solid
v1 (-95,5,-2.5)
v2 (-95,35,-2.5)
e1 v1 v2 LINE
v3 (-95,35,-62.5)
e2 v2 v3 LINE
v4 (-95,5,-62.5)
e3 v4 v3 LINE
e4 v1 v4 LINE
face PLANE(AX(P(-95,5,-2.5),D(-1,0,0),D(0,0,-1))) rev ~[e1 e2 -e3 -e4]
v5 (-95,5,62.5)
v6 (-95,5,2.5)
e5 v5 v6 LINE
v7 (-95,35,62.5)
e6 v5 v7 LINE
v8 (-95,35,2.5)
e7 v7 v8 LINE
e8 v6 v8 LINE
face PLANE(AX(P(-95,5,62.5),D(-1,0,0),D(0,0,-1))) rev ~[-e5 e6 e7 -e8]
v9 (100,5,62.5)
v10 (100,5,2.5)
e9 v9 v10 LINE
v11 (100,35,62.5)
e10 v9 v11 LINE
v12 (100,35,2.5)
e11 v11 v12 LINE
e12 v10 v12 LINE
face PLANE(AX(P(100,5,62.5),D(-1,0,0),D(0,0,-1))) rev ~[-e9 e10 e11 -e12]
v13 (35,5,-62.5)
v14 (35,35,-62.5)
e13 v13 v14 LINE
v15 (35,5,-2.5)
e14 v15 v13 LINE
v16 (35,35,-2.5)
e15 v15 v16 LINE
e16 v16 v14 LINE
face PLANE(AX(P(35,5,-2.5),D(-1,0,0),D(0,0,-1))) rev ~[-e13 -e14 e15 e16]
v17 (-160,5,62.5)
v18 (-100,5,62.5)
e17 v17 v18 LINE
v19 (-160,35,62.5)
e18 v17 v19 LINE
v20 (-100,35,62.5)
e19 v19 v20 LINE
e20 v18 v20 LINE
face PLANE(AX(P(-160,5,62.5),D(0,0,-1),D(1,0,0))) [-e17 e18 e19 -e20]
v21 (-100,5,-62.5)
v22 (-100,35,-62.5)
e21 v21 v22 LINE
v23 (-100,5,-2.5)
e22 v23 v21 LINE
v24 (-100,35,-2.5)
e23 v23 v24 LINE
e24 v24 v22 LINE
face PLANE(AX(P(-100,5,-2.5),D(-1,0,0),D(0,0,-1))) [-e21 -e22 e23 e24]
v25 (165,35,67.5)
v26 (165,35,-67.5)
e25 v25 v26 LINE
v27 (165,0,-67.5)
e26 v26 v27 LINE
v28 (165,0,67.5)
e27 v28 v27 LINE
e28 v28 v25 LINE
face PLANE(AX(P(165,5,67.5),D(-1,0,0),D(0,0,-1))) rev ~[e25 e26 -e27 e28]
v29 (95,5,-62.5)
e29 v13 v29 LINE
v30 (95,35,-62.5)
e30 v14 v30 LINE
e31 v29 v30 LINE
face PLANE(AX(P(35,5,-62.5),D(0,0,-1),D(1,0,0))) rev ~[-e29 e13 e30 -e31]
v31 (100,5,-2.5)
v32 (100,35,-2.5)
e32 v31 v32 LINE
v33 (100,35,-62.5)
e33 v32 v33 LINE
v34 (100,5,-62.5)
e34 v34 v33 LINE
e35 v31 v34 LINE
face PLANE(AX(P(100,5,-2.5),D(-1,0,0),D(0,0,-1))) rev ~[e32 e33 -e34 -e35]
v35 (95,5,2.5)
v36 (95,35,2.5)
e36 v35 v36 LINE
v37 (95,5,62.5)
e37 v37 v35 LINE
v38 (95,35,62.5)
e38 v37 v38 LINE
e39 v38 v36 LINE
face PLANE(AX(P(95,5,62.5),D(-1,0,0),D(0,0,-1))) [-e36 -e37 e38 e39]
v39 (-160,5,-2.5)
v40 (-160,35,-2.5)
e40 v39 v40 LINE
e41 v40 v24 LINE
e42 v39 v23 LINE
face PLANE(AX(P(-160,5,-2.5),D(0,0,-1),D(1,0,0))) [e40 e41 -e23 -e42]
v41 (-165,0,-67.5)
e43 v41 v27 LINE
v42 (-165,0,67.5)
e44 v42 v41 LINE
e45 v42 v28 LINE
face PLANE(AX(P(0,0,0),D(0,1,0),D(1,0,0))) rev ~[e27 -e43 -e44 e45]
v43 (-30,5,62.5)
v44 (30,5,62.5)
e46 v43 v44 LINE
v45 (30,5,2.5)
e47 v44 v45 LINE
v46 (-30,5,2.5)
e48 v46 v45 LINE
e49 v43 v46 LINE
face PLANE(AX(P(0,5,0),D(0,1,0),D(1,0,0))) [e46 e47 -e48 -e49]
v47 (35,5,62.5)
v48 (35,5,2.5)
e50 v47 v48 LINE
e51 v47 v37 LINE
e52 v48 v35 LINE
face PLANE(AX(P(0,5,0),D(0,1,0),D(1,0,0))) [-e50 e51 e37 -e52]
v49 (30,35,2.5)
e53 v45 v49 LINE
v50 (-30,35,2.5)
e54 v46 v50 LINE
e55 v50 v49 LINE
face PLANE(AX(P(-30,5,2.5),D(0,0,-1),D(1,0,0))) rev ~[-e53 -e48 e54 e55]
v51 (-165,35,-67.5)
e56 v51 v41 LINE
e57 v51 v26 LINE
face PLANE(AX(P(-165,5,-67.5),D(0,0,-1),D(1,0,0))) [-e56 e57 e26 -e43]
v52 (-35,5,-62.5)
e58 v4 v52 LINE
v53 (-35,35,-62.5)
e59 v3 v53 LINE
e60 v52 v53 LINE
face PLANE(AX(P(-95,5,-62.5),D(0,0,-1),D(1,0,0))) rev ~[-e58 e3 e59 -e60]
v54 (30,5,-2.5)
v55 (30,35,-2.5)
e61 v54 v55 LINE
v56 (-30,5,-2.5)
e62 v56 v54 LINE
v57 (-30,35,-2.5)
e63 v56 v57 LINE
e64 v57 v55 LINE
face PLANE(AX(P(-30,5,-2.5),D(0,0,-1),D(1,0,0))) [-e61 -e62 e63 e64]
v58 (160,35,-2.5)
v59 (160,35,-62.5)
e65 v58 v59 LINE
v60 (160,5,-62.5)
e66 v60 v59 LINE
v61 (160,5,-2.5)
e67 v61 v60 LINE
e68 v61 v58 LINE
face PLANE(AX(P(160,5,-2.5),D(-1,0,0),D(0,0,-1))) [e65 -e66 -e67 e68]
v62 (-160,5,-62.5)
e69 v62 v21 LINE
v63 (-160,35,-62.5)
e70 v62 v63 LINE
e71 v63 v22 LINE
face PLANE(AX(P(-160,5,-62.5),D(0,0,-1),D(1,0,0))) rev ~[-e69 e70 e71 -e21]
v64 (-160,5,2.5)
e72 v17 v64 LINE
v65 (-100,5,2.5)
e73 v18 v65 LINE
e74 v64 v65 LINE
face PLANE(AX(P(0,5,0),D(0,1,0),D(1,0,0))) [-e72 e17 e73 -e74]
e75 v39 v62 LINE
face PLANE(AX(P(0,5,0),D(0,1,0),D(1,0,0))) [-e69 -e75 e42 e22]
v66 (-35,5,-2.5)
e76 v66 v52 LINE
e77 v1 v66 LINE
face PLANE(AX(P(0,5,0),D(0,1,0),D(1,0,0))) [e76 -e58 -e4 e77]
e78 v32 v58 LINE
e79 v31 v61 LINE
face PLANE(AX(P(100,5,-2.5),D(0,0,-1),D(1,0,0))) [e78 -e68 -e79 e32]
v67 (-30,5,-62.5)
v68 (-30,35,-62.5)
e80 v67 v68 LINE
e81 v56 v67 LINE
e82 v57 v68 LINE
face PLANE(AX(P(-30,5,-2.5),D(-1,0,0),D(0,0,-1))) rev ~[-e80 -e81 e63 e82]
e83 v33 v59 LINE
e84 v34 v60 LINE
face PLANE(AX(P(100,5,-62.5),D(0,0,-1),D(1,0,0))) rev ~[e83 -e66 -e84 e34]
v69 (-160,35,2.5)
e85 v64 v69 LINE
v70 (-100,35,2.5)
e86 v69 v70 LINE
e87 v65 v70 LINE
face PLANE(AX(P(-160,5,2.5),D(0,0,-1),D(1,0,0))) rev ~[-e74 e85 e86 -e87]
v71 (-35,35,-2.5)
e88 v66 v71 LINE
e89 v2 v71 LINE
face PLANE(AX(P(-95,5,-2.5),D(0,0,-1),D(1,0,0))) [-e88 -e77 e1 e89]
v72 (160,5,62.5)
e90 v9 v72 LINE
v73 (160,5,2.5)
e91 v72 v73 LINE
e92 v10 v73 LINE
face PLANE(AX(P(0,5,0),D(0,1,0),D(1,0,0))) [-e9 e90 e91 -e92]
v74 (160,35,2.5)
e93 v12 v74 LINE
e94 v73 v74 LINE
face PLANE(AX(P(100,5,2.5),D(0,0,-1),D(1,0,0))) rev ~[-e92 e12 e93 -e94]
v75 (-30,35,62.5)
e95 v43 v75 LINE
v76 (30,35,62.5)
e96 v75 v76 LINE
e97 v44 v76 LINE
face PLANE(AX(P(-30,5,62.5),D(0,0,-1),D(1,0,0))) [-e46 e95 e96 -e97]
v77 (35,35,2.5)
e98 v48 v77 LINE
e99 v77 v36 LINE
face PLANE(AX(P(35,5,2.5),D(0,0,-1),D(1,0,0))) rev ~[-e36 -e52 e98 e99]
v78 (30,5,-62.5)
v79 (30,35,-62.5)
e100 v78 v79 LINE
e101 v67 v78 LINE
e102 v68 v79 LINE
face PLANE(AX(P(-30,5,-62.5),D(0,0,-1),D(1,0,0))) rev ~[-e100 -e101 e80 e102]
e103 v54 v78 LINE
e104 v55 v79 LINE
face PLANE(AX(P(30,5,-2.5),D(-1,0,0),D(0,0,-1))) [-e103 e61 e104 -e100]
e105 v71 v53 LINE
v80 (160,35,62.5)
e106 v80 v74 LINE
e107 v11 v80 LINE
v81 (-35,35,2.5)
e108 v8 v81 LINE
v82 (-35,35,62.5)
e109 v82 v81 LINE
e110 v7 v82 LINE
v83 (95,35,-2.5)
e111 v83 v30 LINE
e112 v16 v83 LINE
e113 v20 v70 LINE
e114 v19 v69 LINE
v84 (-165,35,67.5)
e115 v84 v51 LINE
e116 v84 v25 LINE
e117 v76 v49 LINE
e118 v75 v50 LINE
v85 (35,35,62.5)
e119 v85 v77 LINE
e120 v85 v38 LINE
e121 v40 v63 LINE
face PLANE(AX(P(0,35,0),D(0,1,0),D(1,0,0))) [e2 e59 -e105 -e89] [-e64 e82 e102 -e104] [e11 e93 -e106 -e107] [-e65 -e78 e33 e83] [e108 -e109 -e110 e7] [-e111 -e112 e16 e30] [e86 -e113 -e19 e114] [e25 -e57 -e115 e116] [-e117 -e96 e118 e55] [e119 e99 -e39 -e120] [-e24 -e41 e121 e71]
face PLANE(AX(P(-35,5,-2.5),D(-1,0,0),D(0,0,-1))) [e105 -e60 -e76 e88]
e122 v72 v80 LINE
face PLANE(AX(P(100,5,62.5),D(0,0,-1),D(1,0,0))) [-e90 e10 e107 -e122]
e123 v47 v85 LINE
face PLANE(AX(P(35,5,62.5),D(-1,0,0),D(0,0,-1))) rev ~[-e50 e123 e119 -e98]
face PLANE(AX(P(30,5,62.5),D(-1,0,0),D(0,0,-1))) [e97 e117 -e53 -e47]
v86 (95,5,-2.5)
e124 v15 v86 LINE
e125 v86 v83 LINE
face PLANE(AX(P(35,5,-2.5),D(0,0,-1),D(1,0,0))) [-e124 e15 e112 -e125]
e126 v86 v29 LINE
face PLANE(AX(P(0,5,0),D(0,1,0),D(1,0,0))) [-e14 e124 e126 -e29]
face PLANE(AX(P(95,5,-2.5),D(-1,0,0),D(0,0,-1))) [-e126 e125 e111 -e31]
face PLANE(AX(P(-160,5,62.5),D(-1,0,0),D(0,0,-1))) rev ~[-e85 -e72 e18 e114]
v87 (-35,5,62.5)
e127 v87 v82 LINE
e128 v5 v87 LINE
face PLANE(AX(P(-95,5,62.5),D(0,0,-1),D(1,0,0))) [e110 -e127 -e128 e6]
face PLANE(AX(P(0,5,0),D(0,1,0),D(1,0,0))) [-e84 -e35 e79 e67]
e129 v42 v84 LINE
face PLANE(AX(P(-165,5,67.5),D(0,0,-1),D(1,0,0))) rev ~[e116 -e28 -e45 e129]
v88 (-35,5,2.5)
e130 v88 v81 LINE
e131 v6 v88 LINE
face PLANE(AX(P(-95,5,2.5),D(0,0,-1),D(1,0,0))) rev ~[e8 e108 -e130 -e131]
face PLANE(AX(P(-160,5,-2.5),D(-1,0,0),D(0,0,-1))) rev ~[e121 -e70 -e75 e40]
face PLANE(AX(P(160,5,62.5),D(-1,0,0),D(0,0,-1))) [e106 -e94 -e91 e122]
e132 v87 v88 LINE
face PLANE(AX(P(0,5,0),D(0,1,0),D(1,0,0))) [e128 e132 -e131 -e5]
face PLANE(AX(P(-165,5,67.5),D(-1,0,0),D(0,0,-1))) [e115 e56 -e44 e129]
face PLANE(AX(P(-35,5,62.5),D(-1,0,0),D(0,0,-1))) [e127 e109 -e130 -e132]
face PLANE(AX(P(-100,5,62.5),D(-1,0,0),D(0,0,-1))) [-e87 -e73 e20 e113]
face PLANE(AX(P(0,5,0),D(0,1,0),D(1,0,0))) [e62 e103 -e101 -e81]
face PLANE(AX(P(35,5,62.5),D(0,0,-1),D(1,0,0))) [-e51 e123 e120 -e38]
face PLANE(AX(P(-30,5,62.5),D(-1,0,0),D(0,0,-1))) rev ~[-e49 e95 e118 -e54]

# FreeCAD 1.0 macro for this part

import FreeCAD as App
import Part
import Sketcher

V = App.Vector
Q = App.Units.Quantity


def add_polygon(sketch, points):
    """Adds a closed chain of lines whose ends are joined by coincident constraints."""
    first, n = sketch.GeometryCount, len(points)
    for a, b in zip(points, points[1:] + points[:1]):
        sketch.addGeometry(Part.LineSegment(App.Vector(*a, 0), App.Vector(*b, 0)), False)
    for i in range(n):
        sketch.addConstraint(Sketcher.Constraint("Coincident", first + i, 2, first + (i + 1) % n, 1))

doc = App.newDocument("Part")
params = doc.addObject("Spreadsheet::Sheet", "Params")
for row, (alias, value) in enumerate([
    ("sketch1_width", "330 mm"),
    ("sketch1_height", "135 mm"),
    ("pad1_length", "5 mm"),
    ("sketch2_width", "330 mm"),
    ("sketch2_width2", "60 mm"),
    ("sketch2_height", "135 mm"),
    ("pad2_length", "30 mm"),
], start=1):
    params.set(f"A{row}", alias)
    params.set(f"B{row}", "=" + value)
    params.setAlias(f"B{row}", alias)

body = doc.addObject("PartDesign::Body", "Body")

sketch1 = body.newObject("Sketcher::SketchObject", "Sketch")
sketch1.AttachmentSupport = (doc.getObject("XZ_Plane"), [""])
sketch1.MapMode = "FlatFace"
add_polygon(sketch1, [(-165, -68), (-165, 68), (165, 68), (165, -68)])
sketch1.addConstraint([
    Sketcher.Constraint("Vertical", 0),
    Sketcher.Constraint("Horizontal", 1),
    Sketcher.Constraint("Vertical", 2),
    Sketcher.Constraint("Horizontal", 3),
    Sketcher.Constraint("Symmetric", 0, 2, 2, 2, -1, 1),
    Sketcher.Constraint("DistanceX", 1, 1, 1, 2, Q("330 mm")),
    Sketcher.Constraint("DistanceY", 0, 1, 0, 2, Q("135 mm")),
])
sketch1.setExpression("Constraints[9]", "Params.sketch1_width")
sketch1.setExpression("Constraints[10]", "Params.sketch1_height")
pad1 = body.newObject("PartDesign::Pad", "Pad")
pad1.Profile = sketch1
pad1.setExpression("Length", "Params.pad1_length")
pad1.Reversed = True

sketch2 = body.newObject("Sketcher::SketchObject", "Sketch001")
sketch2.AttachmentSupport = (doc.getObject("XZ_Plane"), [""])
sketch2.MapMode = "FlatFace"
sketch2.AttachmentOffset = App.Placement(V(0, 0, -5), App.Rotation())
add_polygon(sketch2, [(-165, -68), (-165, 68), (165, 68), (165, -68)])
add_polygon(sketch2, [(-100, 62), (-160, 62), (-160, 2), (-100, 2)])
add_polygon(sketch2, [(-35, 62), (-95, 62), (-95, 2), (-35, 2)])
add_polygon(sketch2, [(30, 62), (-30, 62), (-30, 2), (30, 2)])
add_polygon(sketch2, [(95, 62), (35, 62), (35, 2), (95, 2)])
add_polygon(sketch2, [(160, 62), (100, 62), (100, 2), (160, 2)])
add_polygon(sketch2, [(-100, -2), (-160, -2), (-160, -62), (-100, -62)])
add_polygon(sketch2, [(-35, -2), (-95, -2), (-95, -62), (-35, -62)])
add_polygon(sketch2, [(30, -2), (-30, -2), (-30, -62), (30, -62)])
add_polygon(sketch2, [(95, -2), (35, -2), (35, -62), (95, -62)])
add_polygon(sketch2, [(160, -2), (100, -2), (100, -62), (160, -62)])
sketch2.addConstraint([
    Sketcher.Constraint("Vertical", 0),
    Sketcher.Constraint("Horizontal", 1),
    Sketcher.Constraint("Vertical", 2),
    Sketcher.Constraint("Horizontal", 3),
    Sketcher.Constraint("Horizontal", 4),
    Sketcher.Constraint("Vertical", 5),
    Sketcher.Constraint("Horizontal", 6),
    Sketcher.Constraint("Vertical", 7),
    Sketcher.Constraint("Horizontal", 8),
    Sketcher.Constraint("Vertical", 9),
    Sketcher.Constraint("Horizontal", 10),
    Sketcher.Constraint("Vertical", 11),
    Sketcher.Constraint("Horizontal", 12),
    Sketcher.Constraint("Vertical", 13),
    Sketcher.Constraint("Horizontal", 14),
    Sketcher.Constraint("Vertical", 15),
    Sketcher.Constraint("Horizontal", 16),
    Sketcher.Constraint("Vertical", 17),
    Sketcher.Constraint("Horizontal", 18),
    Sketcher.Constraint("Vertical", 19),
    Sketcher.Constraint("Horizontal", 20),
    Sketcher.Constraint("Vertical", 21),
    Sketcher.Constraint("Horizontal", 22),
    Sketcher.Constraint("Vertical", 23),
    Sketcher.Constraint("Horizontal", 24),
    Sketcher.Constraint("Vertical", 25),
    Sketcher.Constraint("Horizontal", 26),
    Sketcher.Constraint("Vertical", 27),
    Sketcher.Constraint("Horizontal", 28),
    Sketcher.Constraint("Vertical", 29),
    Sketcher.Constraint("Horizontal", 30),
    Sketcher.Constraint("Vertical", 31),
    Sketcher.Constraint("Horizontal", 32),
    Sketcher.Constraint("Vertical", 33),
    Sketcher.Constraint("Horizontal", 34),
    Sketcher.Constraint("Vertical", 35),
    Sketcher.Constraint("Horizontal", 36),
    Sketcher.Constraint("Vertical", 37),
    Sketcher.Constraint("Horizontal", 38),
    Sketcher.Constraint("Vertical", 39),
    Sketcher.Constraint("Horizontal", 40),
    Sketcher.Constraint("Vertical", 41),
    Sketcher.Constraint("Horizontal", 42),
    Sketcher.Constraint("Vertical", 43),
    Sketcher.Constraint("Symmetric", 0, 2, 2, 2, -1, 1),
    Sketcher.Constraint("Symmetric", 22, 2, 24, 2, -1, 1),
    Sketcher.Constraint("Symmetric", 20, 2, 26, 2, -1, 1),
    Sketcher.Constraint("Symmetric", 18, 2, 28, 2, -1, 1),
    Sketcher.Constraint("Symmetric", 16, 2, 30, 2, -1, 1),
    Sketcher.Constraint("Symmetric", 14, 2, 32, 2, -1, 1),
    Sketcher.Constraint("Symmetric", 12, 2, 34, 2, -1, 1),
    Sketcher.Constraint("Symmetric", 10, 2, 36, 2, -1, 1),
    Sketcher.Constraint("Symmetric", 8, 2, 38, 2, -1, 1),
    Sketcher.Constraint("Symmetric", 6, 2, 40, 2, -1, 1),
    Sketcher.Constraint("Symmetric", 4, 2, 42, 2, -1, 1),
    Sketcher.Constraint("Symmetric", 11, 2, 16, 2, -2),
    Sketcher.Constraint("Symmetric", 9, 2, 18, 2, -2),
    Sketcher.Constraint("Symmetric", 7, 2, 20, 2, -2),
    Sketcher.Constraint("Symmetric", 5, 2, 22, 2, -2),
    Sketcher.Constraint("Horizontal", 7, 2, 8, 2),
    Sketcher.Constraint("Horizontal", 6, 2, 9, 2),
    Sketcher.Constraint("Horizontal", 11, 2, 12, 2),
    Sketcher.Constraint("Horizontal", 10, 2, 13, 2),
    Sketcher.Constraint("Vertical", 13, 2, 32, 2),
    Sketcher.Constraint("Equal", 6, 8),
    Sketcher.Constraint("Equal", 10, 12),
    Sketcher.Constraint("Equal", 42, 5),
    Sketcher.Constraint("DistanceX", 1, 1, 1, 2, Q("330 mm")),
    Sketcher.Constraint("DistanceX", 4, 2, 4, 1, Q("60 mm")),
    Sketcher.Constraint("DistanceY", 0, 1, 0, 2, Q("135 mm")),
    Sketcher.Constraint("DistanceX", 4, 2, -1, 1, Q("160 mm")),
    Sketcher.Constraint("DistanceX", 8, 2, -1, 1, Q("95 mm")),
    Sketcher.Constraint("DistanceY", 4, 2, 0, 2, Q("5 mm")),
])
sketch2.setExpression("Constraints[111]", "Params.sketch2_width")
sketch2.setExpression("Constraints[112]", "Params.sketch2_width2")
sketch2.setExpression("Constraints[113]", "Params.sketch2_height")
pad2 = body.newObject("PartDesign::Pad", "Pad001")
pad2.Profile = sketch2
pad2.setExpression("Length", "Params.pad2_length")
pad2.Reversed = True

doc.recompute()
